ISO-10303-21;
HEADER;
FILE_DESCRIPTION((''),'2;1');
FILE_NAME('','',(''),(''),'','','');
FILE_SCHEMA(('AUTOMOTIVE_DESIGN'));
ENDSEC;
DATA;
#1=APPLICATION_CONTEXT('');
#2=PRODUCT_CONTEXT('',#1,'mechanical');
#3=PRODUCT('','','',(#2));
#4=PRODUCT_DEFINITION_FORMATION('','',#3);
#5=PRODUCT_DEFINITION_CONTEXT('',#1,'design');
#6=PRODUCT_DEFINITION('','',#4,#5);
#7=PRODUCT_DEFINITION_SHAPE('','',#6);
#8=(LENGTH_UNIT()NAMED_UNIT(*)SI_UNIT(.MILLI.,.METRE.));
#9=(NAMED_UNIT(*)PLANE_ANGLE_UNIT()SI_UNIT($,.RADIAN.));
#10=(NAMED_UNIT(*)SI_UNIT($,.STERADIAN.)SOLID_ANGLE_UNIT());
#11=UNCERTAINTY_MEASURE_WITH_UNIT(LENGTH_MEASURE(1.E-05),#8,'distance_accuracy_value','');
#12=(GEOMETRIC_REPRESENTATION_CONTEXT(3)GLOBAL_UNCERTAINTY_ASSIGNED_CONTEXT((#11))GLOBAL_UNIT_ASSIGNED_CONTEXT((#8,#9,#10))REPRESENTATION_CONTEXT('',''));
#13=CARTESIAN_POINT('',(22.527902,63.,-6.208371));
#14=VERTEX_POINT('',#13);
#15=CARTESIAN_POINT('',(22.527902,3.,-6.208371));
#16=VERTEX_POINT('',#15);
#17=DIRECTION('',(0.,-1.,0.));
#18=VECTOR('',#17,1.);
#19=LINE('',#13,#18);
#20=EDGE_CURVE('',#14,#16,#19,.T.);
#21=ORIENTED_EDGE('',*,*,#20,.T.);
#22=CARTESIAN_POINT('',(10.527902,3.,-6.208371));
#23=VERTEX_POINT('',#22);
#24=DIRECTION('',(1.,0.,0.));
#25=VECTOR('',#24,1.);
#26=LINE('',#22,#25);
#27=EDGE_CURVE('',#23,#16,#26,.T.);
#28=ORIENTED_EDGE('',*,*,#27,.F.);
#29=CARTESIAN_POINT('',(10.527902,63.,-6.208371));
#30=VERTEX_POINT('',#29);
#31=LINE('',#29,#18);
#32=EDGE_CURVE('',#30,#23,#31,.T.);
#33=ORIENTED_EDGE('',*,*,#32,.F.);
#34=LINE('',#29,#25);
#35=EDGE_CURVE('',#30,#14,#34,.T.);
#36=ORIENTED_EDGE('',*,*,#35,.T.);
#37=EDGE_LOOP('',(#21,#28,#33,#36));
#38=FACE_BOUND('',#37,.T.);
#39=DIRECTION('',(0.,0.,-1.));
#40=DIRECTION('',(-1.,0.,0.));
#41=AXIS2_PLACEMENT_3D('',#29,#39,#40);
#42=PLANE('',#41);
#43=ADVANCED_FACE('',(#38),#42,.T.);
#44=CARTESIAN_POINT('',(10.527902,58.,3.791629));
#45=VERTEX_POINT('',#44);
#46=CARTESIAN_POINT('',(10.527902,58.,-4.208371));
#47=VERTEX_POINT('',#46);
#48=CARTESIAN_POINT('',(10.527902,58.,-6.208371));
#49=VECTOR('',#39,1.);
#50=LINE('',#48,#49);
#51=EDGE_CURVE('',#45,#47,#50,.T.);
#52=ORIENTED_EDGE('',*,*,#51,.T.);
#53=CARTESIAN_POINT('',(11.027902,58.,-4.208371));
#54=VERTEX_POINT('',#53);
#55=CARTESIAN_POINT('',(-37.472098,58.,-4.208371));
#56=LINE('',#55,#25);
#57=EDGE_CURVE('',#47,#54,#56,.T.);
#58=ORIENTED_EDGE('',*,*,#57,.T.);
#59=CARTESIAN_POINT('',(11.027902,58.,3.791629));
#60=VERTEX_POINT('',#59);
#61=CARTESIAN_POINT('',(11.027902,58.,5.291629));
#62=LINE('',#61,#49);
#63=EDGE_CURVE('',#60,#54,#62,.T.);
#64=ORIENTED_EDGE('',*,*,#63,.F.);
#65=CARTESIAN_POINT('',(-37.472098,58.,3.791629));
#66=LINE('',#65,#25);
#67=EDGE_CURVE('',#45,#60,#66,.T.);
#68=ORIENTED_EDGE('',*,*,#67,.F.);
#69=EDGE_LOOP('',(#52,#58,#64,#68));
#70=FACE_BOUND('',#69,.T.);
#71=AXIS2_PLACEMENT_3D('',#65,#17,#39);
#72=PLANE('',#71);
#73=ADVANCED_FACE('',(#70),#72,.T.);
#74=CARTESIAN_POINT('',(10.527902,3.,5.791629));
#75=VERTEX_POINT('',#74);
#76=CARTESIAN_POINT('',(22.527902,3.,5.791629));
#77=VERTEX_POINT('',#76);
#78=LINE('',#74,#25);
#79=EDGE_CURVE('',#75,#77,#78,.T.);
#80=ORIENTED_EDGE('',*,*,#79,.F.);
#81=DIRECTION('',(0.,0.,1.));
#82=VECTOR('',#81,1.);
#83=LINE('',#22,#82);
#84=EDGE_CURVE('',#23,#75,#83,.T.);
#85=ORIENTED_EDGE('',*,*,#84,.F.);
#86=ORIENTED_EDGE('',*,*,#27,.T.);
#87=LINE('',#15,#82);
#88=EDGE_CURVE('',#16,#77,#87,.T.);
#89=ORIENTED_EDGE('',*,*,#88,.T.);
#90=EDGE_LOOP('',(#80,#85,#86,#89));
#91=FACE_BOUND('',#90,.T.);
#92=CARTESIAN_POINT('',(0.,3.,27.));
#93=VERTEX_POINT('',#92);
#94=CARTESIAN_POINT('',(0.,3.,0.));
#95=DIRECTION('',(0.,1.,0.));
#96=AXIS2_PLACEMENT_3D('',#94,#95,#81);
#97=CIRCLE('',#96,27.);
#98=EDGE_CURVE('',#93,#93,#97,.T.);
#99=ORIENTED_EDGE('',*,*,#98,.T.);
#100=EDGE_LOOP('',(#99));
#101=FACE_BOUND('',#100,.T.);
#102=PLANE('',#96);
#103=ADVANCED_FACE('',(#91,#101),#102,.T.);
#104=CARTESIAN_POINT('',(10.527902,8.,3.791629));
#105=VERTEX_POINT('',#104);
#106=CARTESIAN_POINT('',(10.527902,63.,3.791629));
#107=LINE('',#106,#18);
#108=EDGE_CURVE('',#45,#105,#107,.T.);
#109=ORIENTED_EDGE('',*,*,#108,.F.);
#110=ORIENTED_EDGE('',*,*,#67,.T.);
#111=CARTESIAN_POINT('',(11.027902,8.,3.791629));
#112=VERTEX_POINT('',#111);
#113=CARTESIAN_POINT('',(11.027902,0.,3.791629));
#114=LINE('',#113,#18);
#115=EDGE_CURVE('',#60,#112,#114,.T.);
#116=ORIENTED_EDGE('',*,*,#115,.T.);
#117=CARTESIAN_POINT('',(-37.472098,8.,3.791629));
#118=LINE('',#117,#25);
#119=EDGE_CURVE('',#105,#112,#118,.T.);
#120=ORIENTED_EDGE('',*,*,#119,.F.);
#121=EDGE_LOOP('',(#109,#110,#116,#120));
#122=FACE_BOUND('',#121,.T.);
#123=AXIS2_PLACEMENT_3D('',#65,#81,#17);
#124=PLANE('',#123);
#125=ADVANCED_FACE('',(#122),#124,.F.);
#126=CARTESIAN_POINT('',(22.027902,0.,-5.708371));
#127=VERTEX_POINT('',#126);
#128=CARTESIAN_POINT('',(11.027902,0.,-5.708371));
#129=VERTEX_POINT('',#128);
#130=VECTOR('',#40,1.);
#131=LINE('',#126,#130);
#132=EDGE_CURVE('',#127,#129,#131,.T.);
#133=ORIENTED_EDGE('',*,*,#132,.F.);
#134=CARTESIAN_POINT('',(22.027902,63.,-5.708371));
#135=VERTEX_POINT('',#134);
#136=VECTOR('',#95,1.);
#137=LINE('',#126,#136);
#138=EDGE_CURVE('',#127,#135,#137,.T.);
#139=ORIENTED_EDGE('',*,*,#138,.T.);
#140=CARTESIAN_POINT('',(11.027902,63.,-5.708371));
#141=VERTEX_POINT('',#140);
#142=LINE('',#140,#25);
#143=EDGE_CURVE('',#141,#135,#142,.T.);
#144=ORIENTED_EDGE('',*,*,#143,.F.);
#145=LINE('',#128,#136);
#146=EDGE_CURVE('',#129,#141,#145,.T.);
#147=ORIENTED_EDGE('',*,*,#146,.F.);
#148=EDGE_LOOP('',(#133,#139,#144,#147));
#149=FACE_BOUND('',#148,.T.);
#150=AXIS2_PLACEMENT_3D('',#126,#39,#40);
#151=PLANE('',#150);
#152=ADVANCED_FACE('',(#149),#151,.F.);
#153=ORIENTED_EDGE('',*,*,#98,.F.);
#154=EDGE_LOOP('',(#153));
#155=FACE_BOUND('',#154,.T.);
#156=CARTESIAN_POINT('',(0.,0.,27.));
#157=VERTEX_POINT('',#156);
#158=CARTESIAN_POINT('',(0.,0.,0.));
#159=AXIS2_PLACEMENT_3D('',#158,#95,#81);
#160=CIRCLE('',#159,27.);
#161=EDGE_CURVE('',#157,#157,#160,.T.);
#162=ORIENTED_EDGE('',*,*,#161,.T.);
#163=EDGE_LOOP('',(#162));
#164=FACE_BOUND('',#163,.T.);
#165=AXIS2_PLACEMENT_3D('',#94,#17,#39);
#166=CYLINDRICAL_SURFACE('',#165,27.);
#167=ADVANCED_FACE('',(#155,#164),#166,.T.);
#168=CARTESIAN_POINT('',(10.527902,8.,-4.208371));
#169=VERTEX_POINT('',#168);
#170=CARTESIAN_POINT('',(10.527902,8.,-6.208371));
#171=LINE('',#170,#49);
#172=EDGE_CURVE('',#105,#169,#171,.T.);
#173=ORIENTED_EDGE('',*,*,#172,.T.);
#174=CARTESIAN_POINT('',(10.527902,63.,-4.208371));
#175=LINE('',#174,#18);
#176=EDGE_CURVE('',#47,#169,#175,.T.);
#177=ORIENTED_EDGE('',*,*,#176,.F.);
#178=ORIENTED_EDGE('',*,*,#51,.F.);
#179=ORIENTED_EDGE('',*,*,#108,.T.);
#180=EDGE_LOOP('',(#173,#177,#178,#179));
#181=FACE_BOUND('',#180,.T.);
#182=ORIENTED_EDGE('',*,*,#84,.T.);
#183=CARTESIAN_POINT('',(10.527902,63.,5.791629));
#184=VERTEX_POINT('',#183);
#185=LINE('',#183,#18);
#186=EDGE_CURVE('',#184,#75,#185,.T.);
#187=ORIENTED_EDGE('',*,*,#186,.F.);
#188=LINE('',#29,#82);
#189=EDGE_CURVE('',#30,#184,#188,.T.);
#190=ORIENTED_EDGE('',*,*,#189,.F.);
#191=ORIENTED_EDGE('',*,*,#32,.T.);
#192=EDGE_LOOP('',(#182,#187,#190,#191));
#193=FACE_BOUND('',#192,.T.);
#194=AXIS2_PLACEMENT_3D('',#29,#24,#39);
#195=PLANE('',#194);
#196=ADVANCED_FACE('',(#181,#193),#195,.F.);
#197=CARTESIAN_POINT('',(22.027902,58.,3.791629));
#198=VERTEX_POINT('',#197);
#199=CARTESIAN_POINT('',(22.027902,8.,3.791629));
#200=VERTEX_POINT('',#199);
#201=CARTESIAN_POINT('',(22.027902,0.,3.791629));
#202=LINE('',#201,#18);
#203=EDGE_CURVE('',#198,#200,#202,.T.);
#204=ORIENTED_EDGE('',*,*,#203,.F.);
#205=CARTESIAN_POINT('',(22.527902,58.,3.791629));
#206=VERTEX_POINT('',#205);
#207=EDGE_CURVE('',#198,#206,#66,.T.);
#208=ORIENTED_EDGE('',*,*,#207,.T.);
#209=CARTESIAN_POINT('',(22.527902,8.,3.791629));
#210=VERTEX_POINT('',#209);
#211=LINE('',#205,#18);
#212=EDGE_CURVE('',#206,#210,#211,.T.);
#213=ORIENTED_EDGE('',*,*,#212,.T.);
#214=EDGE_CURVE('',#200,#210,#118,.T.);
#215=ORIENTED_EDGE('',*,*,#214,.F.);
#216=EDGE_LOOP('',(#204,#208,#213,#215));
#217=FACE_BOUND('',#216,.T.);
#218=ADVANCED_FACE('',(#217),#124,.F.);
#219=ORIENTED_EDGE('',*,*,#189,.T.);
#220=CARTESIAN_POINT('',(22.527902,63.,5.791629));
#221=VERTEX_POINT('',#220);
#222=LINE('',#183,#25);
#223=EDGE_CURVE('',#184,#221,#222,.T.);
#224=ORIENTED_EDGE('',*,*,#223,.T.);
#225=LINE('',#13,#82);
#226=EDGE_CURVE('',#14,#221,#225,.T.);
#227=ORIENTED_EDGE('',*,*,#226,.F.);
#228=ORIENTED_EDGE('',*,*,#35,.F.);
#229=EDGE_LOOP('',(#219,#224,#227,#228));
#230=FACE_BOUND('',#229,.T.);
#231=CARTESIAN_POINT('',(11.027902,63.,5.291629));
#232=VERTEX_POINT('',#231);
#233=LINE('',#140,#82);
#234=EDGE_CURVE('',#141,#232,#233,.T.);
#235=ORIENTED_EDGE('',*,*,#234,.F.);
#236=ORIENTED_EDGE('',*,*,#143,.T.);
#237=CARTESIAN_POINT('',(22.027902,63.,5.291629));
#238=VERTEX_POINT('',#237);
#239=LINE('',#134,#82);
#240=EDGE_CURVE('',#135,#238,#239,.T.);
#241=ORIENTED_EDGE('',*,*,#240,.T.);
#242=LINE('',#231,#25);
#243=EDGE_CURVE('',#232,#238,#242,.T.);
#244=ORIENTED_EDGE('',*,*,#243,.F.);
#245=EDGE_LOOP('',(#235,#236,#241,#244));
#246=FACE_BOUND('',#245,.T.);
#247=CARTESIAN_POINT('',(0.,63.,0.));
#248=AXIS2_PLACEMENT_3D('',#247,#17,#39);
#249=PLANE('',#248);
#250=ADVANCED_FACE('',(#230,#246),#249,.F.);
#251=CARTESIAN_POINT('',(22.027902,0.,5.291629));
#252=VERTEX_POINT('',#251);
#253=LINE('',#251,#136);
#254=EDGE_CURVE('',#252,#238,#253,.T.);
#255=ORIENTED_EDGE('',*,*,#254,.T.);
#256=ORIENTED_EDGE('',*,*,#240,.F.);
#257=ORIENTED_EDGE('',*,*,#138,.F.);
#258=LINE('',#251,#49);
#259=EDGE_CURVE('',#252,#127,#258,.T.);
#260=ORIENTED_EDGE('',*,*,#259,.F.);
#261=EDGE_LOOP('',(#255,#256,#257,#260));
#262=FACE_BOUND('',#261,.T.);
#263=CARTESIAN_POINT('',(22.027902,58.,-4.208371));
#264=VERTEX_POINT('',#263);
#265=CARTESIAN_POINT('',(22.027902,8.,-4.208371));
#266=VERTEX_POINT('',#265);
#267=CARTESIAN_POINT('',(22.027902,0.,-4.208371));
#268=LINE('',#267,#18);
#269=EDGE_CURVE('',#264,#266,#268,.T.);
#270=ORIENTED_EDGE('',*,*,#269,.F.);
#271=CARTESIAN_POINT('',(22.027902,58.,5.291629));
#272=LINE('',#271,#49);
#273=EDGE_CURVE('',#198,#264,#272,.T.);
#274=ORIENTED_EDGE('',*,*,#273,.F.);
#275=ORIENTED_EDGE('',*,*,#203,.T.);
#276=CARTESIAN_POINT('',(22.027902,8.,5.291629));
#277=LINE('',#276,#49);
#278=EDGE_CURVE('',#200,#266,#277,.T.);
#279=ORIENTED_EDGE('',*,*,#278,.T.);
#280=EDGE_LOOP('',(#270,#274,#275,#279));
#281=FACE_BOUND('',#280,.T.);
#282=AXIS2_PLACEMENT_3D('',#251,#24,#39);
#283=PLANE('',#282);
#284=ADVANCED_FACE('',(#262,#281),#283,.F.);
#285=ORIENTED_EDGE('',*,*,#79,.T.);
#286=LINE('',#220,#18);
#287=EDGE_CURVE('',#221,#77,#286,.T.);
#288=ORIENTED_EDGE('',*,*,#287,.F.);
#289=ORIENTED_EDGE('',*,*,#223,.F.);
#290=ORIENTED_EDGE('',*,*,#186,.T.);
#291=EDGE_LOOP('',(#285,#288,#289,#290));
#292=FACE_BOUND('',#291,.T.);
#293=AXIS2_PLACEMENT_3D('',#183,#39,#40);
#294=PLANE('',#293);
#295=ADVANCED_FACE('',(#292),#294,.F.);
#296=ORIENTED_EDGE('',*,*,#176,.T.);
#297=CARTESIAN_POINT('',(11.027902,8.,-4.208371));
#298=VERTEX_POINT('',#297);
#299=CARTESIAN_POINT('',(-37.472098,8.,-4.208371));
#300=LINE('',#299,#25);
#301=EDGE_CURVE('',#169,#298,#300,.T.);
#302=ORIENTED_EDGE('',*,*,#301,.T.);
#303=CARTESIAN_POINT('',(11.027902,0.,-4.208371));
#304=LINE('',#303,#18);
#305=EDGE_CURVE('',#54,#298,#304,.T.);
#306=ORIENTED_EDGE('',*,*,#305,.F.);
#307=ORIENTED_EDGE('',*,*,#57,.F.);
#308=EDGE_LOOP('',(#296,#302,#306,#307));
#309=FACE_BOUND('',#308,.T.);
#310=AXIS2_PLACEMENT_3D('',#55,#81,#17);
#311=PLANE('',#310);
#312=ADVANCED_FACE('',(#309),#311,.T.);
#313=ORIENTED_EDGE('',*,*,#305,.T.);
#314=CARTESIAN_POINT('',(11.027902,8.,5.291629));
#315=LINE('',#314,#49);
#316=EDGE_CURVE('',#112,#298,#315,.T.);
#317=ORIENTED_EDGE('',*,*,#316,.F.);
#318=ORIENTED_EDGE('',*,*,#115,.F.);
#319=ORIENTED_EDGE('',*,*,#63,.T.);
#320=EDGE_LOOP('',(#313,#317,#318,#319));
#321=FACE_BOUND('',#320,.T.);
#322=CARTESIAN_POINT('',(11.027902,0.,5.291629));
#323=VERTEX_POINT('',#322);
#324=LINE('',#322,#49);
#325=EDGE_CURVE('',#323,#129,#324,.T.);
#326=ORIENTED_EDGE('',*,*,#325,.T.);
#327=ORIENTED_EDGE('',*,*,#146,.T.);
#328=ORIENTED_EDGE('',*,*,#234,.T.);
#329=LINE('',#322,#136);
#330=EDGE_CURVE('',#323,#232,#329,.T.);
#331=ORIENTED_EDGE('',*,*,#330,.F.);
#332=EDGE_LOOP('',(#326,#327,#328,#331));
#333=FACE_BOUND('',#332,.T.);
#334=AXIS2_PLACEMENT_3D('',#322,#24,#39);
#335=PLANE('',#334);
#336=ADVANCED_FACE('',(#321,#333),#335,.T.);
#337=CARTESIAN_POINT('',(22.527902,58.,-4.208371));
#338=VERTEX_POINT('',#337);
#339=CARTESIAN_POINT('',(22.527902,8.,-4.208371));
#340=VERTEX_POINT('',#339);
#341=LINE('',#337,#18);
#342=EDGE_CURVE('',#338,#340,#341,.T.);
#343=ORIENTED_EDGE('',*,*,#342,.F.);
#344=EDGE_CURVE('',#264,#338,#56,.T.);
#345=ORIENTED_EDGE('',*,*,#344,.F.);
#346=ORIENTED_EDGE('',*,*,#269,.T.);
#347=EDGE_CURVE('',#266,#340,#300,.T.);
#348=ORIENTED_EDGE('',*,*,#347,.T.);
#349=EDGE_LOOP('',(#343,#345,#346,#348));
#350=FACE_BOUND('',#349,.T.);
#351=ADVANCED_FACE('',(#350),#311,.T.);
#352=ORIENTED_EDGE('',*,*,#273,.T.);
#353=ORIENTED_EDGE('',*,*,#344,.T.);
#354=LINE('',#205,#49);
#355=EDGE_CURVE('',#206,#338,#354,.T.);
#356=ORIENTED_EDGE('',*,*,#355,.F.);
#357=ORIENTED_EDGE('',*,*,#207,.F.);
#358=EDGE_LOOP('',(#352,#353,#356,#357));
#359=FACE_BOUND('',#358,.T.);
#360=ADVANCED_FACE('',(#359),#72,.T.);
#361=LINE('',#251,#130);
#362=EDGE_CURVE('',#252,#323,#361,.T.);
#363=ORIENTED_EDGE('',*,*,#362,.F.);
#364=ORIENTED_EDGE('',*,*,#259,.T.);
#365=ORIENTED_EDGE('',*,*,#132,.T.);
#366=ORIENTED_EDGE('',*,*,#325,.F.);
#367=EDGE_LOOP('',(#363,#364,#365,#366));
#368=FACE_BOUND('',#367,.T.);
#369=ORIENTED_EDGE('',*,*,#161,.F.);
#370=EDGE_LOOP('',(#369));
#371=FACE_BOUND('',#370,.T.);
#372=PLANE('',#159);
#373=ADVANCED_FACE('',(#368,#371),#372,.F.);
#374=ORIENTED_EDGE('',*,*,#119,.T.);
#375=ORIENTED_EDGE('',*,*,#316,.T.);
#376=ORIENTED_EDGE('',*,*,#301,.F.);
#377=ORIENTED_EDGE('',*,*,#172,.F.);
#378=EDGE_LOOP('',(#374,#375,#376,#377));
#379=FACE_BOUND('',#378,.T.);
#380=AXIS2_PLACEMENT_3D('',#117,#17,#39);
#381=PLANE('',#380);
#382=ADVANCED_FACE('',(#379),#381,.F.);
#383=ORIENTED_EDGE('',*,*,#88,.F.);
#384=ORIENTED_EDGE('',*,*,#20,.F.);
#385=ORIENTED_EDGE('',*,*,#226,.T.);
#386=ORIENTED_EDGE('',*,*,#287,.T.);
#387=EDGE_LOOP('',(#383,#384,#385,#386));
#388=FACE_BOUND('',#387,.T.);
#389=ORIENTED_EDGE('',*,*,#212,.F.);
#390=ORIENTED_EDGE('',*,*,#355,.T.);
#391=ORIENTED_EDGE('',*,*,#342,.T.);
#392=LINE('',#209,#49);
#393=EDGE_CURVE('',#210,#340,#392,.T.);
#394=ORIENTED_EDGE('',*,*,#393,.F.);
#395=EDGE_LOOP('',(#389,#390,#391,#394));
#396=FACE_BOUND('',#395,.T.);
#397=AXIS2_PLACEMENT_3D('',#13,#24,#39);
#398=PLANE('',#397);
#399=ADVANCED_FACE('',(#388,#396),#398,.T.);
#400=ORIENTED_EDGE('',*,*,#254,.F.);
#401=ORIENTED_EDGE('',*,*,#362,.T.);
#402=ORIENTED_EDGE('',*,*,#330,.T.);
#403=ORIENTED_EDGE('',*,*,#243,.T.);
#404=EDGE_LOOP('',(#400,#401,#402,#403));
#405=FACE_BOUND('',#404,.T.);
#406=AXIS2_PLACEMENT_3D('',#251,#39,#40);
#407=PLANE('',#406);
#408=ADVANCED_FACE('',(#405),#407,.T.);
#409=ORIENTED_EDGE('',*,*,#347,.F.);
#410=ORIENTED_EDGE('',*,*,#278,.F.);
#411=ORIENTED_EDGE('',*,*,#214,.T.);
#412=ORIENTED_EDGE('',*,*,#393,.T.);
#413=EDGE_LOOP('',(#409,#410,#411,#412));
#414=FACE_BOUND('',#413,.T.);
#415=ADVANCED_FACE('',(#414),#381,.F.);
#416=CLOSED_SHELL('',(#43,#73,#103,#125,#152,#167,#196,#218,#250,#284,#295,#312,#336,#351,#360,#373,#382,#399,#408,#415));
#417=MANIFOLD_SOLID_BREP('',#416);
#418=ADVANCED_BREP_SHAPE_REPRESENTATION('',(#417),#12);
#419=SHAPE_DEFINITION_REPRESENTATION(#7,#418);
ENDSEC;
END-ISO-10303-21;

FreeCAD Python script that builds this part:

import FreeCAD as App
import Part
import Sketcher
Q = App.Units.Quantity

doc = App.newDocument("Part")
params = doc.addObject("Spreadsheet::Sheet", "Params")
for row, (alias, value) in enumerate([
    ("sketch1_diameter", "54 mm"),
    ("pad1_length", "3 mm"),
    ("sketch2_width", "11 mm"),
    ("pocket1_length", "3 mm"),
    ("sketch3_width", "12 mm"),
    ("sketch3_width2", "11 mm"),
    ("pad2_length", "60 mm"),
    ("sketch4_width", "50 mm"),
    ("sketch4_height", "8 mm"),
    ("pocket2_length", "60 mm"),
], start=1):
    params.set(f"A{row}", alias)
    params.set(f"B{row}", "=" + value)
    params.setAlias(f"B{row}", alias)

body = doc.addObject("PartDesign::Body", "Body")

sketch1 = body.newObject("Sketcher::SketchObject", "Sketch")
sketch1.AttachmentSupport = (doc.getObject("XZ_Plane"), [""])
sketch1.MapMode = "FlatFace"
sketch1.addGeometry(Part.Circle(App.Vector(0, 0, 0), App.Vector(0, 0, 1), 27), False)
sketch1.addConstraint(Sketcher.Constraint("Coincident", 0, 3, -1, 1))
sketch1.addConstraint(Sketcher.Constraint("Diameter", 0, Q("54 mm")))
sketch1.setExpression("Constraints[1]", "Params.sketch1_diameter")
pad1 = body.newObject("PartDesign::Pad", "Pad")
pad1.Profile = sketch1
pad1.setExpression("Length", "Params.pad1_length")
pad1.Reversed = True

sketch2 = body.newObject("Sketcher::SketchObject", "Sketch001")
sketch2.AttachmentSupport = (doc.getObject("XZ_Plane"), [""])
sketch2.MapMode = "FlatFace"
sketch2.AttachmentOffset = App.Placement(App.Vector(0, 0, -3), App.Rotation())
sketch2.addGeometry(Part.LineSegment(App.Vector(11, -6, 0), App.Vector(11, 5, 0)), False)
sketch2.addGeometry(Part.LineSegment(App.Vector(11, 5, 0), App.Vector(22, 5, 0)), False)
sketch2.addGeometry(Part.LineSegment(App.Vector(22, 5, 0), App.Vector(22, -6, 0)), False)
sketch2.addGeometry(Part.LineSegment(App.Vector(22, -6, 0), App.Vector(11, -6, 0)), False)
sketch2.addConstraint(Sketcher.Constraint("Coincident", 0, 2, 1, 1))
sketch2.addConstraint(Sketcher.Constraint("Coincident", 1, 2, 2, 1))
sketch2.addConstraint(Sketcher.Constraint("Coincident", 2, 2, 3, 1))
sketch2.addConstraint(Sketcher.Constraint("Coincident", 3, 2, 0, 1))
sketch2.addConstraint(Sketcher.Constraint("Vertical", 0))
sketch2.addConstraint(Sketcher.Constraint("Horizontal", 1))
sketch2.addConstraint(Sketcher.Constraint("Vertical", 2))
sketch2.addConstraint(Sketcher.Constraint("Horizontal", 3))
sketch2.addConstraint(Sketcher.Constraint("Equal", 3, 0))
sketch2.addConstraint(Sketcher.Constraint("DistanceX", 1, 1, 1, 2, Q("11 mm")))
sketch2.addConstraint(Sketcher.Constraint("DistanceX", -1, 1, 0, 2, Q("11.027902 mm")))
sketch2.addConstraint(Sketcher.Constraint("DistanceY", -1, 1, 0, 2, Q("5.291629 mm")))
sketch2.setExpression("Constraints[9]", "Params.sketch2_width")
pocket1 = body.newObject("PartDesign::Pocket", "Pocket")
pocket1.Profile = sketch2
pocket1.setExpression("Length", "Params.pocket1_length")
pocket1.Reversed = True

sketch3 = body.newObject("Sketcher::SketchObject", "Sketch002")
sketch3.AttachmentSupport = (doc.getObject("XZ_Plane"), [""])
sketch3.MapMode = "FlatFace"
sketch3.AttachmentOffset = App.Placement(App.Vector(0, 0, -3), App.Rotation())
sketch3.addGeometry(Part.LineSegment(App.Vector(11, -6, 0), App.Vector(11, 6, 0)), False)
sketch3.addGeometry(Part.LineSegment(App.Vector(11, 6, 0), App.Vector(23, 6, 0)), False)
sketch3.addGeometry(Part.LineSegment(App.Vector(23, 6, 0), App.Vector(23, -6, 0)), False)
sketch3.addGeometry(Part.LineSegment(App.Vector(23, -6, 0), App.Vector(11, -6, 0)), False)
sketch3.addGeometry(Part.LineSegment(App.Vector(22, 5, 0), App.Vector(11, 5, 0)), False)
sketch3.addGeometry(Part.LineSegment(App.Vector(11, 5, 0), App.Vector(11, -6, 0)), False)
sketch3.addGeometry(Part.LineSegment(App.Vector(11, -6, 0), App.Vector(22, -6, 0)), False)
sketch3.addGeometry(Part.LineSegment(App.Vector(22, -6, 0), App.Vector(22, 5, 0)), False)
sketch3.addConstraint(Sketcher.Constraint("Coincident", 0, 2, 1, 1))
sketch3.addConstraint(Sketcher.Constraint("Coincident", 1, 2, 2, 1))
sketch3.addConstraint(Sketcher.Constraint("Coincident", 2, 2, 3, 1))
sketch3.addConstraint(Sketcher.Constraint("Coincident", 3, 2, 0, 1))
sketch3.addConstraint(Sketcher.Constraint("Coincident", 4, 2, 5, 1))
sketch3.addConstraint(Sketcher.Constraint("Coincident", 5, 2, 6, 1))
sketch3.addConstraint(Sketcher.Constraint("Coincident", 6, 2, 7, 1))
sketch3.addConstraint(Sketcher.Constraint("Coincident", 7, 2, 4, 1))
sketch3.addConstraint(Sketcher.Constraint("Vertical", 0))
sketch3.addConstraint(Sketcher.Constraint("Horizontal", 1))
sketch3.addConstraint(Sketcher.Constraint("Vertical", 2))
sketch3.addConstraint(Sketcher.Constraint("Horizontal", 3))
sketch3.addConstraint(Sketcher.Constraint("Horizontal", 4))
sketch3.addConstraint(Sketcher.Constraint("Vertical", 5))
sketch3.addConstraint(Sketcher.Constraint("Horizontal", 6))
sketch3.addConstraint(Sketcher.Constraint("Vertical", 7))
sketch3.addConstraint(Sketcher.Constraint("Equal", 3, 0))
sketch3.addConstraint(Sketcher.Constraint("Equal", 6, 5))
sketch3.addConstraint(Sketcher.Constraint("DistanceX", 1, 1, 1, 2, Q("12 mm")))
sketch3.addConstraint(Sketcher.Constraint("DistanceX", 4, 2, 4, 1, Q("11 mm")))
sketch3.addConstraint(Sketcher.Constraint("DistanceX", 0, 2, 4, 2, Q("0.5 mm")))
sketch3.addConstraint(Sketcher.Constraint("DistanceY", 4, 2, 0, 2, Q("0.5 mm")))
sketch3.addConstraint(Sketcher.Constraint("DistanceX", -1, 1, 0, 2, Q("10.527902 mm")))
sketch3.addConstraint(Sketcher.Constraint("DistanceY", -1, 1, 0, 2, Q("5.791629 mm")))
sketch3.setExpression("Constraints[18]", "Params.sketch3_width")
sketch3.setExpression("Constraints[19]", "Params.sketch3_width2")
pad2 = body.newObject("PartDesign::Pad", "Pad001")
pad2.Profile = sketch3
pad2.setExpression("Length", "Params.pad2_length")
pad2.Reversed = True

sketch4 = body.newObject("Sketcher::SketchObject", "Sketch003")
sketch4.AttachmentSupport = (doc.getObject("YZ_Plane"), [""])
sketch4.MapMode = "FlatFace"
sketch4.AttachmentOffset = App.Placement(App.Vector(0, 0, 22.527902), App.Rotation())
sketch4.addGeometry(Part.LineSegment(App.Vector(58, 4, 0), App.Vector(8, 4, 0)), False)
sketch4.addGeometry(Part.LineSegment(App.Vector(8, 4, 0), App.Vector(8, -4, 0)), False)
sketch4.addGeometry(Part.LineSegment(App.Vector(8, -4, 0), App.Vector(58, -4, 0)), False)
sketch4.addGeometry(Part.LineSegment(App.Vector(58, -4, 0), App.Vector(58, 4, 0)), False)
sketch4.addConstraint(Sketcher.Constraint("Coincident", 0, 2, 1, 1))
sketch4.addConstraint(Sketcher.Constraint("Coincident", 1, 2, 2, 1))
sketch4.addConstraint(Sketcher.Constraint("Coincident", 2, 2, 3, 1))
sketch4.addConstraint(Sketcher.Constraint("Coincident", 3, 2, 0, 1))
sketch4.addConstraint(Sketcher.Constraint("Horizontal", 0))
sketch4.addConstraint(Sketcher.Constraint("Vertical", 1))
sketch4.addConstraint(Sketcher.Constraint("Horizontal", 2))
sketch4.addConstraint(Sketcher.Constraint("Vertical", 3))
sketch4.addConstraint(Sketcher.Constraint("DistanceX", 0, 2, 0, 1, Q("50 mm")))
sketch4.addConstraint(Sketcher.Constraint("DistanceY", 1, 2, 1, 1, Q("8 mm")))
sketch4.addConstraint(Sketcher.Constraint("DistanceX", -1, 1, 0, 2, Q("8 mm")))
sketch4.addConstraint(Sketcher.Constraint("DistanceY", -1, 1, 0, 2, Q("3.791629 mm")))
sketch4.setExpression("Constraints[8]", "Params.sketch4_width")
sketch4.setExpression("Constraints[9]", "Params.sketch4_height")
pocket2 = body.newObject("PartDesign::Pocket", "Pocket001")
pocket2.Profile = sketch4
pocket2.setExpression("Length", "Params.pocket2_length")

doc.recompute()
